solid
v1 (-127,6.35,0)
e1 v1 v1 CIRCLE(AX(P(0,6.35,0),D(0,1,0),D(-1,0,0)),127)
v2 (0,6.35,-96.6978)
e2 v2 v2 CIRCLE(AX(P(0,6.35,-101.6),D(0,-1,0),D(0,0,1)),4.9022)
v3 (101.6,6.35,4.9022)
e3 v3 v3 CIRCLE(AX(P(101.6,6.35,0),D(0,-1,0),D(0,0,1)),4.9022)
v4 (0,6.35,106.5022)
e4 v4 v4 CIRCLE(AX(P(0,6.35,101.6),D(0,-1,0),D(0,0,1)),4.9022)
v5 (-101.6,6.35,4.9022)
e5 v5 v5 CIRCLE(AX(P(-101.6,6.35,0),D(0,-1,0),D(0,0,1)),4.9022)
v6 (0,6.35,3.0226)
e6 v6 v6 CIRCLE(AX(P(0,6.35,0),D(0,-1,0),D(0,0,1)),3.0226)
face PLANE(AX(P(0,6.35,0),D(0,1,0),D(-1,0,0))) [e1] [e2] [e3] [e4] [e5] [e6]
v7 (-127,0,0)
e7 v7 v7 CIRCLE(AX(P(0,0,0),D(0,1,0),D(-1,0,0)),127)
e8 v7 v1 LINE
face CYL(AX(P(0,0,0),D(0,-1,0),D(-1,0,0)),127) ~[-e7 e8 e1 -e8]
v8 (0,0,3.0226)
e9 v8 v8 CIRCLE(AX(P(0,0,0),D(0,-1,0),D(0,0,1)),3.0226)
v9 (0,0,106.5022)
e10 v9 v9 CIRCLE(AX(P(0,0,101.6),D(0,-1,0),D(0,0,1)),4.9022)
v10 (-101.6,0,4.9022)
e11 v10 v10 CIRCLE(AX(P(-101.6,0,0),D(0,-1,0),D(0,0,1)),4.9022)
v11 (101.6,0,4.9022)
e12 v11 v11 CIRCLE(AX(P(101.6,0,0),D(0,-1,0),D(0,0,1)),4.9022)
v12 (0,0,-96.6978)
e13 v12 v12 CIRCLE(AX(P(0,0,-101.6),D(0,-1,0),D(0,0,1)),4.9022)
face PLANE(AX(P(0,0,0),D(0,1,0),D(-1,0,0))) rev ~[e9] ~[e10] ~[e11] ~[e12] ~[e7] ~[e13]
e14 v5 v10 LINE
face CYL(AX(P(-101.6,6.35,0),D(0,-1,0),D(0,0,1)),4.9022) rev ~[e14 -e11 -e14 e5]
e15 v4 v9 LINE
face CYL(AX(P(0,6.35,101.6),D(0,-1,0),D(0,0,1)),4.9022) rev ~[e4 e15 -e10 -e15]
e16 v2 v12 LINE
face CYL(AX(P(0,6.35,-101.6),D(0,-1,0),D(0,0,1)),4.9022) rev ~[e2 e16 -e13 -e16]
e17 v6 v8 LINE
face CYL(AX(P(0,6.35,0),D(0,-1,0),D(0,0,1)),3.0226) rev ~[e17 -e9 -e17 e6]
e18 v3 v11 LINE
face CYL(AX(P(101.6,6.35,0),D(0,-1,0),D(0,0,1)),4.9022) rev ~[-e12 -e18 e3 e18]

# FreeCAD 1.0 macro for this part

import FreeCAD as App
import Part
import Sketcher

V = App.Vector
Q = App.Units.Quantity

doc = App.newDocument("Part")
body = doc.addObject("PartDesign::Body", "Body")

sketch1 = body.newObject("Sketcher::SketchObject", "Sketch")
sketch1.AttachmentSupport = (doc.getObject("XZ_Plane"), [""])
sketch1.MapMode = "FlatFace"
sketch1.addGeometry(Part.Circle(V(0, 0, 0), V(0, 0, 1), 127), False)
sketch1.addConstraint(Sketcher.Constraint("Coincident", 0, 3, -1, 1))
sketch1.addConstraint(Sketcher.Constraint("Diameter", 0, Q("10 in")))
pad1 = body.newObject("PartDesign::Pad", "Pad")
pad1.Profile = sketch1
pad1.Length = Q("0.25 in")
pad1.Reversed = True

sketch2 = body.newObject("Sketcher::SketchObject", "Sketch001")
sketch2.AttachmentSupport = (doc.getObject("XZ_Plane"), [""])
sketch2.MapMode = "FlatFace"
sketch2.AttachmentOffset = App.Placement(V(0, 0, -0.25 * 25.4), App.Rotation())
sketch2.addGeometry(Part.Circle(V(0, 0, 0), V(0, 0, 1), 3.0226), False)
sketch2.addConstraint(Sketcher.Constraint("Coincident", 0, 3, -1, 1))
sketch2.addConstraint(Sketcher.Constraint("Diameter", 0, Q("0.238 in")))
doc.recompute()
hole = body.newObject("PartDesign::Hole", "Hole")
hole.Profile = sketch2
hole.ThreadType = "None"
hole.Diameter = Q("0.238 in")
hole.DepthType = "ThroughAll"
hole.Reversed = True

sketch3 = body.newObject("Sketcher::SketchObject", "Sketch002")
sketch3.AttachmentSupport = (doc.getObject("XZ_Plane"), [""])
sketch3.MapMode = "FlatFace"
sketch3.AttachmentOffset = App.Placement(V(0, 0, -0.25 * 25.4), App.Rotation())
sketch3.addGeometry(Part.Circle(V(-101.6, 0, 0), V(0, 0, 1), 4.9022), False)
sketch3.addGeometry(Part.Circle(V(0, 101.6, 0), V(0, 0, 1), 4.9022), False)
sketch3.addGeometry(Part.Circle(V(0, -101.6, 0), V(0, 0, 1), 4.9022), False)
sketch3.addGeometry(Part.Circle(V(101.6, 0, 0), V(0, 0, 1), 4.9022), False)
sketch3.addConstraint(Sketcher.Constraint("Equal", 0, 1))
sketch3.addConstraint(Sketcher.Constraint("Equal", 1, 2))
sketch3.addConstraint(Sketcher.Constraint("Equal", 2, 3))
sketch3.addConstraint(Sketcher.Constraint("Symmetric", 1, 3, 2, 3, -1, 1))
sketch3.addConstraint(Sketcher.Constraint("Symmetric", 0, 3, 3, 3, -1, 1))
sketch3.addConstraint(Sketcher.Constraint("PointOnObject", 0, 3, -1))
sketch3.addConstraint(Sketcher.Constraint("PointOnObject", 1, 3, -2))
sketch3.addConstraint(Sketcher.Constraint("Diameter", 0, Q("0.386 in")))
sketch3.addConstraint(Sketcher.Constraint("DistanceX", 0, 3, -1, 1, Q("4 in")))
sketch3.addConstraint(Sketcher.Constraint("DistanceY", -1, 1, 1, 3, Q("4 in")))
doc.recompute()
hole2 = body.newObject("PartDesign::Hole", "Hole001")
hole2.Profile = sketch3
hole2.ThreadType = "None"
hole2.Diameter = Q("0.386 in")
hole2.DepthType = "ThroughAll"
hole2.Reversed = True

doc.recompute()
